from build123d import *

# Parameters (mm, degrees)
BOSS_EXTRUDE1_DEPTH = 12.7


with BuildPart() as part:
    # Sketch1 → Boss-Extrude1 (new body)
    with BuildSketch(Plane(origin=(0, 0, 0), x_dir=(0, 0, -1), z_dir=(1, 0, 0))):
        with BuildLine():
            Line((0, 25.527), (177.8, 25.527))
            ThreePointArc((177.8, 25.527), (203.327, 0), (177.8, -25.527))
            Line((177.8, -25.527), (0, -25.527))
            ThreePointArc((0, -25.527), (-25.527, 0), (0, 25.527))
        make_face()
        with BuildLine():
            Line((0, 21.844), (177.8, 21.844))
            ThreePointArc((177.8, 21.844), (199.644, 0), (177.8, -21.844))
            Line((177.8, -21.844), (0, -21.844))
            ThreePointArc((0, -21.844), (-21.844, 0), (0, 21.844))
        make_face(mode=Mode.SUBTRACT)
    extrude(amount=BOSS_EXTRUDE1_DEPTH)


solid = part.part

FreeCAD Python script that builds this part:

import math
import FreeCAD as App
import Part
import Sketcher
from FreeCAD import Vector
Q = App.Units.Quantity

doc = App.newDocument("Part")
params = doc.addObject("Spreadsheet::Sheet", "Params")
for row, (alias, value) in enumerate([
    ("sketch1_height", "7 in"),
    ("sketch1_radius", "0.86 in"),
    ("sketch1_radius2", "1.005 in"),
    ("pad1_length", "0.5 in"),
], start=1):
    params.set(f"A{row}", alias)
    params.set(f"B{row}", "=" + value)
    params.setAlias(f"B{row}", alias)

body = doc.addObject("PartDesign::Body", "Body")

# Sketch on YZ plane
sketch1 = doc.addObject("Sketcher::SketchObject", "Sketch")
body.addObject(sketch1)
sketch1.AttachmentSupport = (doc.YZ_Plane, [""])
sketch1.MapMode = "FlatFace"
sketch1.addGeometry([
    Part.LineSegment(Vector(26, -178, 0), Vector(26, 0, 0)),  # 0
    Part.ArcOfCircle(Part.Circle(Vector(0, 0, 0), Vector(0, 0, 1), 26), math.radians(0), math.radians(180)),  # 1
    Part.LineSegment(Vector(-26, 0, 0), Vector(-26, -178, 0)),  # 2
    Part.ArcOfCircle(Part.Circle(Vector(0, -178, 0), Vector(0, 0, 1), 26), math.radians(180), math.radians(360)),  # 3
    Part.LineSegment(Vector(22, 0, 0), Vector(22, -178, 0)),  # 4
    Part.ArcOfCircle(Part.Circle(Vector(0, -178, 0), Vector(0, 0, 1), 22), math.radians(180), math.radians(360)),  # 5
    Part.LineSegment(Vector(-22, -178, 0), Vector(-22, 0, 0)),  # 6
    Part.ArcOfCircle(Part.Circle(Vector(0, 0, 0), Vector(0, 0, 1), 22), math.radians(0), math.radians(180)),  # 7
], False)
sketch1.addConstraint([
    Sketcher.Constraint("Tangent", 0, 2, 1, 1),
    Sketcher.Constraint("Tangent", 1, 2, 2, 1),
    Sketcher.Constraint("Tangent", 2, 2, 3, 1),
    Sketcher.Constraint("Tangent", 3, 2, 0, 1),
    Sketcher.Constraint("Tangent", 4, 2, 5, 2),
    Sketcher.Constraint("Tangent", 5, 1, 6, 1),
    Sketcher.Constraint("Tangent", 6, 2, 7, 2),
    Sketcher.Constraint("Tangent", 7, 1, 4, 1),
    Sketcher.Constraint("Vertical", 0),
    Sketcher.Constraint("Vertical", 2),
    Sketcher.Constraint("Vertical", 4),
    Sketcher.Constraint("Vertical", 6),
    Sketcher.Constraint("Coincident", 1, 3, -1, 1),
    Sketcher.Constraint("Coincident", 7, 3, -1, 1),
    Sketcher.Constraint("Horizontal", 5, 3, 2, 2),
    Sketcher.Constraint("DistanceY", 0, 1, 0, 2, Q("7 in")),
    Sketcher.Constraint("Radius", 5, Q("0.86 in")),
    Sketcher.Constraint("Radius", 1, Q("1.005 in")),
])
sketch1.setExpression("Constraints[15]", "Params.sketch1_height")
sketch1.setExpression("Constraints[16]", "Params.sketch1_radius")
sketch1.setExpression("Constraints[17]", "Params.sketch1_radius2")
pad1 = doc.addObject("PartDesign::Pad", "Pad")
body.addObject(pad1)
pad1.Profile = sketch1
pad1.setExpression("Length", "Params.pad1_length")

doc.recompute()
